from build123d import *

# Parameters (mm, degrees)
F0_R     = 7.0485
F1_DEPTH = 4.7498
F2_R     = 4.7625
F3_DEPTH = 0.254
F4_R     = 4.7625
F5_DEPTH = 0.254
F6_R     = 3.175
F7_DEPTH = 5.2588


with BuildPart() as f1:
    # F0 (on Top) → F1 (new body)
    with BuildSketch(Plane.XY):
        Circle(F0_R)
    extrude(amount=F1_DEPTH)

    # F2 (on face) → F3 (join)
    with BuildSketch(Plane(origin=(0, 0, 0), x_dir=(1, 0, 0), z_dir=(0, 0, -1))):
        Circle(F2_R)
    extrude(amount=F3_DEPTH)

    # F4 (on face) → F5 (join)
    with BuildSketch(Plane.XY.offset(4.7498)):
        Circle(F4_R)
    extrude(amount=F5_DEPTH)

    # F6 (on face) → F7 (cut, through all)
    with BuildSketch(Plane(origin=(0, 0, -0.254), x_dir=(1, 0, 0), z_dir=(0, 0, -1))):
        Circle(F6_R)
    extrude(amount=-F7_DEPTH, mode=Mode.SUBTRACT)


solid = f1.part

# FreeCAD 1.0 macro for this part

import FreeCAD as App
import Part
import Sketcher
Q = App.Units.Quantity

doc = App.newDocument("Part")
body = doc.addObject("PartDesign::Body", "Body")

# Sketch on XY plane
sketch1 = body.newObject("Sketcher::SketchObject", "Sketch")
sketch1.AttachmentSupport = (doc.getObject("XY_Plane"), [""])
sketch1.MapMode = "FlatFace"
sketch1.addGeometry(Part.Circle(App.Vector(0, 0, 0), App.Vector(0, 0, 1), 7.0485), False)
sketch1.addConstraint([
    Sketcher.Constraint("Coincident", 0, 3, -1, 1),
    Sketcher.Constraint("Diameter", 0, Q("0.555 in")),
])
pad1 = body.newObject("PartDesign::Pad", "Pad")
pad1.Profile = sketch1
pad1.Length = Q("0.187 in")

# Sketch on XY plane
sketch2 = body.newObject("Sketcher::SketchObject", "Sketch001")
sketch2.AttachmentSupport = (doc.getObject("XY_Plane"), [""])
sketch2.MapMode = "FlatFace"
sketch2.addGeometry(Part.Circle(App.Vector(0, 0, 0), App.Vector(0, 0, 1), 4.7625), False)
sketch2.addConstraint([
    Sketcher.Constraint("Coincident", 0, 3, -1, 1),
    Sketcher.Constraint("Diameter", 0, Q("0.375 in")),
])
pad2 = body.newObject("PartDesign::Pad", "Pad001")
pad2.Profile = sketch2
pad2.Length = Q("0.01 in")
pad2.Reversed = True

# Sketch on XY plane
sketch3 = body.newObject("Sketcher::SketchObject", "Sketch002")
sketch3.AttachmentSupport = (doc.getObject("XY_Plane"), [""])
sketch3.MapMode = "FlatFace"
sketch3.AttachmentOffset = App.Placement(App.Vector(0, 0, 0.187 * 25.4), App.Rotation())
sketch3.addGeometry(Part.Circle(App.Vector(0, 0, 0), App.Vector(0, 0, 1), 4.7625), False)
sketch3.addConstraint([
    Sketcher.Constraint("Coincident", 0, 3, -1, 1),
    Sketcher.Constraint("Diameter", 0, Q("0.375 in")),
])
pad3 = body.newObject("PartDesign::Pad", "Pad002")
pad3.Profile = sketch3
pad3.Length = Q("0.01 in")

# Sketch on XY plane
sketch4 = body.newObject("Sketcher::SketchObject", "Sketch003")
sketch4.AttachmentSupport = (doc.getObject("XY_Plane"), [""])
sketch4.MapMode = "FlatFace"
sketch4.AttachmentOffset = App.Placement(App.Vector(0, 0, -0.01 * 25.4), App.Rotation())
sketch4.addGeometry(Part.Circle(App.Vector(0, 0, 0), App.Vector(0, 0, 1), 3.175), False)
sketch4.addConstraint([
    Sketcher.Constraint("Coincident", 0, 3, -1, 1),
    Sketcher.Constraint("Diameter", 0, Q("0.25 in")),
])
pocket1 = body.newObject("PartDesign::Pocket", "Pocket")
pocket1.Profile = sketch4
pocket1.Type = "ThroughAll"
pocket1.Reversed = True

doc.recompute()
